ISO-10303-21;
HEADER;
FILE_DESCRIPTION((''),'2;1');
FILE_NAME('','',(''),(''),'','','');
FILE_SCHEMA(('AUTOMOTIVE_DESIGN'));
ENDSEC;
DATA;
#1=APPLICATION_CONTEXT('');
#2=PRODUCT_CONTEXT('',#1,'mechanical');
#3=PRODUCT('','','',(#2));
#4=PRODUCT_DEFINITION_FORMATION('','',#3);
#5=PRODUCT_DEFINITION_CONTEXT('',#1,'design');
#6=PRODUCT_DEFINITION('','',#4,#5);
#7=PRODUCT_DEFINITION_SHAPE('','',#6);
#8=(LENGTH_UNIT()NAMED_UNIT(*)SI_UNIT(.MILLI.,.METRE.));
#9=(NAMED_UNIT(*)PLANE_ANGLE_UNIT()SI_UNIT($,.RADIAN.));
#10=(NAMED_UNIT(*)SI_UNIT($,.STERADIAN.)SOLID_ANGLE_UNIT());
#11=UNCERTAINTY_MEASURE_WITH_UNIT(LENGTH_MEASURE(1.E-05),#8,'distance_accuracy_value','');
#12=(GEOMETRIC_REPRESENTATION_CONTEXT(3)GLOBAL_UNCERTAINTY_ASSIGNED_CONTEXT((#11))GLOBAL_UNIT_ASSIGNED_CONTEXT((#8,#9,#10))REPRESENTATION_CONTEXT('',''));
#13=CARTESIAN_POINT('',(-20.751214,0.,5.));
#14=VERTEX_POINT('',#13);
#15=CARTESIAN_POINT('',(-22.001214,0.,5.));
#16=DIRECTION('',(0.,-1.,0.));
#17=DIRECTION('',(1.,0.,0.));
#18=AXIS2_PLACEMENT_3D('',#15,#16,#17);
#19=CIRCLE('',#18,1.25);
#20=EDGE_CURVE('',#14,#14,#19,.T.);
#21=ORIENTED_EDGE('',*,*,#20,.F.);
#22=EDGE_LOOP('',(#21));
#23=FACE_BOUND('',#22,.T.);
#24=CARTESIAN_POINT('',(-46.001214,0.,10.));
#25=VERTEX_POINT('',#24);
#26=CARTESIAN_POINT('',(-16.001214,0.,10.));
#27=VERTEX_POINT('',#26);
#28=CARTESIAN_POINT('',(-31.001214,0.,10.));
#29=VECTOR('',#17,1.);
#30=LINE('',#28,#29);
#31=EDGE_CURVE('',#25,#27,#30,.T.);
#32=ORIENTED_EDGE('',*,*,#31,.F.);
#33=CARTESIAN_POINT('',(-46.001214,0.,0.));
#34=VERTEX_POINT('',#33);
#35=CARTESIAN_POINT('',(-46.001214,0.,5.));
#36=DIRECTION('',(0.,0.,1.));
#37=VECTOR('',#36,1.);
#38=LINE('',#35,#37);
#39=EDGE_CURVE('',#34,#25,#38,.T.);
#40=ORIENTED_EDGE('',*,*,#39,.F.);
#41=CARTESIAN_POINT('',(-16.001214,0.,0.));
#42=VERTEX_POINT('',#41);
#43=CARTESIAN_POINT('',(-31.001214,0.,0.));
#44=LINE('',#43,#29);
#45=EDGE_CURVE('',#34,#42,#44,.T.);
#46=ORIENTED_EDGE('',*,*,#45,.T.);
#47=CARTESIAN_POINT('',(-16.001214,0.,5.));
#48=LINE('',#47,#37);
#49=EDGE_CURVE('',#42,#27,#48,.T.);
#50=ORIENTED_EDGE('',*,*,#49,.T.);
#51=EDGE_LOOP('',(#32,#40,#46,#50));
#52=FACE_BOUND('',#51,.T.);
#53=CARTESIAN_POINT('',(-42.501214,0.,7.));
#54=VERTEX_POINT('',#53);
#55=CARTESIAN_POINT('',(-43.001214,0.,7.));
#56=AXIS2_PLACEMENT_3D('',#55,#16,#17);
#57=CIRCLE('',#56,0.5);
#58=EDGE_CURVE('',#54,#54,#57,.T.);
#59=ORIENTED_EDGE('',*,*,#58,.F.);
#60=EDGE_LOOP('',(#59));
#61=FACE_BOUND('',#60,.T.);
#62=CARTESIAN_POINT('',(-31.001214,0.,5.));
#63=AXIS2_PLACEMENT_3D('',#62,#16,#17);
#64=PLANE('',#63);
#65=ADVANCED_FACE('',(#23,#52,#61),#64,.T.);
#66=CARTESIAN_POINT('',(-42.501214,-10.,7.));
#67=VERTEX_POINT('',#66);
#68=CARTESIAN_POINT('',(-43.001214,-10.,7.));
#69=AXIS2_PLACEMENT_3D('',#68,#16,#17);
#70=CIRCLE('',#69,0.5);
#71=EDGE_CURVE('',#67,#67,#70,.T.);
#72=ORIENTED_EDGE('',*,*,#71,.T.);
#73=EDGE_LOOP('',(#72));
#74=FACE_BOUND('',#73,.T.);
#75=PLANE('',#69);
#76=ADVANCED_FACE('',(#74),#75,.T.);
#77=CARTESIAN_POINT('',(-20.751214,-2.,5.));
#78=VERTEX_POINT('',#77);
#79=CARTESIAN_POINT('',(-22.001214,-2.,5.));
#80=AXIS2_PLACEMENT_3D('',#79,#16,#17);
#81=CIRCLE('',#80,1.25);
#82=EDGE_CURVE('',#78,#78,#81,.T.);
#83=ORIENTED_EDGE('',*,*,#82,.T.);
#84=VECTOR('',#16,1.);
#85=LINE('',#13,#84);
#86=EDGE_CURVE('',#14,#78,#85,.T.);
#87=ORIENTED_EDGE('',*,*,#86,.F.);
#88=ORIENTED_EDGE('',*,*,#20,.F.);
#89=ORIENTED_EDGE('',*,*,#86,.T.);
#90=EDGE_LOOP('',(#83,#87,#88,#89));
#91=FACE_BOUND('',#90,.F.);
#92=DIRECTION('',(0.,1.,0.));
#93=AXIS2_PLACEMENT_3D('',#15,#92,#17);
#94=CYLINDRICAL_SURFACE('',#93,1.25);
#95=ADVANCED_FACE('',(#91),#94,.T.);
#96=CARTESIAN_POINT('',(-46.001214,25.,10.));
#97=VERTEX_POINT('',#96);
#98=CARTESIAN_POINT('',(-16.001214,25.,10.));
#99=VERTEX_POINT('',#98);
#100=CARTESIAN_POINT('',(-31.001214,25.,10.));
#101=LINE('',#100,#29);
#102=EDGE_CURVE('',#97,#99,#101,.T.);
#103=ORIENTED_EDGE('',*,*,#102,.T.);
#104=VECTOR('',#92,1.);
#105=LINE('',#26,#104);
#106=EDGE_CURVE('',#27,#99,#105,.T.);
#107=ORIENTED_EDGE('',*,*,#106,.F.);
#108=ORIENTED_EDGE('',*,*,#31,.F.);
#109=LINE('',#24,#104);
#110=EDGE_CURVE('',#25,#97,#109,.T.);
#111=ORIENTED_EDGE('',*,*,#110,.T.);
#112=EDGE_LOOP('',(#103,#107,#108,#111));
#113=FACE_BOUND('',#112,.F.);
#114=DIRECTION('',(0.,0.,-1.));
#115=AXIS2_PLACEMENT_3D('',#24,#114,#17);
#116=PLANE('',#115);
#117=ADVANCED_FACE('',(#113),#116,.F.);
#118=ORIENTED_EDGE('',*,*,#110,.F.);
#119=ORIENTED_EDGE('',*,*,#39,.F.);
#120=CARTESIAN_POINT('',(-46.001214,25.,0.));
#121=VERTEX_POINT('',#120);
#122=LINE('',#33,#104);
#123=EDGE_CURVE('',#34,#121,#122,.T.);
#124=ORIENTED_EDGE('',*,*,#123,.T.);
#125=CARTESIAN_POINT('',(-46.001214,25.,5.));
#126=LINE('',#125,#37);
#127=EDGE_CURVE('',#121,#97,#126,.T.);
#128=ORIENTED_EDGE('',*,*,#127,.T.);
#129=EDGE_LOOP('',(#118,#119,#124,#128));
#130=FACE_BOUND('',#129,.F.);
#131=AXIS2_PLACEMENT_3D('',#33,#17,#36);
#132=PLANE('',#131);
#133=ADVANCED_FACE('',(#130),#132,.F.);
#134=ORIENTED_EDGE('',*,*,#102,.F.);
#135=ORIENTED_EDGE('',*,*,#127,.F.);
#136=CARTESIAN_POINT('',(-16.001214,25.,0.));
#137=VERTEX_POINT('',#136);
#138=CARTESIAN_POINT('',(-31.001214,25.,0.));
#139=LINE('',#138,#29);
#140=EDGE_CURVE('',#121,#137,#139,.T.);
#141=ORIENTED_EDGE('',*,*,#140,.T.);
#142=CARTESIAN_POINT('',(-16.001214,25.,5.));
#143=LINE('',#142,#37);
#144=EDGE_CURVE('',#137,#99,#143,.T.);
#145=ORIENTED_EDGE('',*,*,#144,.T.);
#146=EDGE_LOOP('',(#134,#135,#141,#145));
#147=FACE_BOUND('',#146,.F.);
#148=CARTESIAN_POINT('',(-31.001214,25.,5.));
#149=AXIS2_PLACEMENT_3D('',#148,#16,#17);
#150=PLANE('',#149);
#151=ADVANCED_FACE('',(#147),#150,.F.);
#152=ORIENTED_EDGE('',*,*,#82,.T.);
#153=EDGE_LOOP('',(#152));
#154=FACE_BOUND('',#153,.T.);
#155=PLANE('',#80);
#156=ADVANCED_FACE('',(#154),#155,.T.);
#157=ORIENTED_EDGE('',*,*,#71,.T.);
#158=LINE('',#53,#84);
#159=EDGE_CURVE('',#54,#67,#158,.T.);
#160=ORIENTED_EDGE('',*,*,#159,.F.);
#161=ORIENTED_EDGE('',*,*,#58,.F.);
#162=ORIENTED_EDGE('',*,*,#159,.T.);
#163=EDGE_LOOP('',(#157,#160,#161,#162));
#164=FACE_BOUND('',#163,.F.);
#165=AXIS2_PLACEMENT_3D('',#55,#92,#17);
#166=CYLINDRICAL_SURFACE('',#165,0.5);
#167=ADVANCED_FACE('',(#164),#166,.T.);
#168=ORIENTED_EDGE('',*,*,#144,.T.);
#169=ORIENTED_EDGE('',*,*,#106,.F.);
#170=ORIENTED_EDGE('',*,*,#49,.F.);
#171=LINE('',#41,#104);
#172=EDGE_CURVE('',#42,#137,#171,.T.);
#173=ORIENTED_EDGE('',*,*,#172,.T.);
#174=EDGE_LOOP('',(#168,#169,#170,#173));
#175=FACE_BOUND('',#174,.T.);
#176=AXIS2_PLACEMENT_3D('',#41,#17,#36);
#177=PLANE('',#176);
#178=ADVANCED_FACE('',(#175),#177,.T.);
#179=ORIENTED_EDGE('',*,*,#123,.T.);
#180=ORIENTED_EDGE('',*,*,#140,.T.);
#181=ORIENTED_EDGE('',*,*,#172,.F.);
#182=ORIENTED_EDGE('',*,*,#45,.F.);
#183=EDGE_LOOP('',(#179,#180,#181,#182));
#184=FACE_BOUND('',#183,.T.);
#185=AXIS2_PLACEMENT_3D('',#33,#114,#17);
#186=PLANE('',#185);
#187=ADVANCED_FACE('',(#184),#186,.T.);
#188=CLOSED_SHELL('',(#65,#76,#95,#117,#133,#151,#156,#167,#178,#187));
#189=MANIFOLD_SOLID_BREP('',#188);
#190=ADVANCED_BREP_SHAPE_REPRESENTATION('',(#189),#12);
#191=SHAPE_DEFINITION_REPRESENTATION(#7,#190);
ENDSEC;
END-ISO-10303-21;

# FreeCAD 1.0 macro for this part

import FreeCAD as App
import Part
import Sketcher
from FreeCAD import Vector
Q = App.Units.Quantity


def add_polygon(sketch, points):
    """Adds a closed chain of lines whose ends are joined by coincident constraints."""
    first, n = sketch.GeometryCount, len(points)
    for a, b in zip(points, points[1:] + points[:1]):
        sketch.addGeometry(Part.LineSegment(App.Vector(*a, 0), App.Vector(*b, 0)), False)
    for i in range(n):
        sketch.addConstraint(Sketcher.Constraint("Coincident", first + i, 2, first + (i + 1) % n, 1))

doc = App.newDocument("Part")
body = doc.addObject("PartDesign::Body", "Body")

# Sketch on XZ plane
sketch1 = body.newObject("Sketcher::SketchObject", "Sketch")
sketch1.AttachmentSupport = (doc.getObject("XZ_Plane"), [""])
sketch1.MapMode = "FlatFace"
add_polygon(sketch1, [(-46, 10), (-46, 0), (-16, 0), (-16, 10)])  # lines 0-3
sketch1.addConstraint(Sketcher.Constraint("Vertical", 0))
sketch1.addConstraint(Sketcher.Constraint("Horizontal", 1))
sketch1.addConstraint(Sketcher.Constraint("Vertical", 2))
sketch1.addConstraint(Sketcher.Constraint("Horizontal", 3))
sketch1.addConstraint(Sketcher.Constraint("PointOnObject", 0, 2, -1))
sketch1.addConstraint(Sketcher.Constraint("DistanceX", 1, 1, 1, 2, Q("30 mm")))
sketch1.addConstraint(Sketcher.Constraint("DistanceY", 0, 2, 0, 1, Q("10 mm")))
sketch1.addConstraint(Sketcher.Constraint("DistanceX", 0, 2, -1, 1, Q("46.001214 mm")))
pad1 = body.newObject("PartDesign::Pad", "Pad")
pad1.Profile = sketch1
pad1.Length = 25
pad1.Reversed = True

# Sketch on XZ plane
sketch2 = body.newObject("Sketcher::SketchObject", "Sketch001")
sketch2.AttachmentSupport = (doc.getObject("XZ_Plane"), [""])
sketch2.MapMode = "FlatFace"
sketch2.addGeometry(Part.Circle(Vector(-22, 5, 0), Vector(0, 0, 1), 1.2), False)
sketch2.addConstraint(Sketcher.Constraint("Diameter", 0, Q("2.5 mm")))
sketch2.addConstraint(Sketcher.Constraint("DistanceY", -1, 1, 0, 3, Q("5 mm")))
sketch2.addConstraint(Sketcher.Constraint("DistanceX", 0, 3, -1, 1, Q("22.001214 mm")))
pad2 = body.newObject("PartDesign::Pad", "Pad001")
pad2.Profile = sketch2
pad2.Length = 2

# Sketch on XZ plane
sketch3 = body.newObject("Sketcher::SketchObject", "Sketch002")
sketch3.AttachmentSupport = (doc.getObject("XZ_Plane"), [""])
sketch3.MapMode = "FlatFace"
sketch3.addGeometry(Part.Circle(Vector(-43, 7, 0), Vector(0, 0, 1), 0.5), False)
sketch3.addConstraint(Sketcher.Constraint("Diameter", 0, Q("1 mm")))
sketch3.addConstraint(Sketcher.Constraint("DistanceY", -1, 1, 0, 3, Q("7 mm")))
sketch3.addConstraint(Sketcher.Constraint("DistanceX", 0, 3, -1, 1, Q("43.001214 mm")))
pad3 = body.newObject("PartDesign::Pad", "Pad002")
pad3.Profile = sketch3
pad3.Length = 10

doc.recompute()
